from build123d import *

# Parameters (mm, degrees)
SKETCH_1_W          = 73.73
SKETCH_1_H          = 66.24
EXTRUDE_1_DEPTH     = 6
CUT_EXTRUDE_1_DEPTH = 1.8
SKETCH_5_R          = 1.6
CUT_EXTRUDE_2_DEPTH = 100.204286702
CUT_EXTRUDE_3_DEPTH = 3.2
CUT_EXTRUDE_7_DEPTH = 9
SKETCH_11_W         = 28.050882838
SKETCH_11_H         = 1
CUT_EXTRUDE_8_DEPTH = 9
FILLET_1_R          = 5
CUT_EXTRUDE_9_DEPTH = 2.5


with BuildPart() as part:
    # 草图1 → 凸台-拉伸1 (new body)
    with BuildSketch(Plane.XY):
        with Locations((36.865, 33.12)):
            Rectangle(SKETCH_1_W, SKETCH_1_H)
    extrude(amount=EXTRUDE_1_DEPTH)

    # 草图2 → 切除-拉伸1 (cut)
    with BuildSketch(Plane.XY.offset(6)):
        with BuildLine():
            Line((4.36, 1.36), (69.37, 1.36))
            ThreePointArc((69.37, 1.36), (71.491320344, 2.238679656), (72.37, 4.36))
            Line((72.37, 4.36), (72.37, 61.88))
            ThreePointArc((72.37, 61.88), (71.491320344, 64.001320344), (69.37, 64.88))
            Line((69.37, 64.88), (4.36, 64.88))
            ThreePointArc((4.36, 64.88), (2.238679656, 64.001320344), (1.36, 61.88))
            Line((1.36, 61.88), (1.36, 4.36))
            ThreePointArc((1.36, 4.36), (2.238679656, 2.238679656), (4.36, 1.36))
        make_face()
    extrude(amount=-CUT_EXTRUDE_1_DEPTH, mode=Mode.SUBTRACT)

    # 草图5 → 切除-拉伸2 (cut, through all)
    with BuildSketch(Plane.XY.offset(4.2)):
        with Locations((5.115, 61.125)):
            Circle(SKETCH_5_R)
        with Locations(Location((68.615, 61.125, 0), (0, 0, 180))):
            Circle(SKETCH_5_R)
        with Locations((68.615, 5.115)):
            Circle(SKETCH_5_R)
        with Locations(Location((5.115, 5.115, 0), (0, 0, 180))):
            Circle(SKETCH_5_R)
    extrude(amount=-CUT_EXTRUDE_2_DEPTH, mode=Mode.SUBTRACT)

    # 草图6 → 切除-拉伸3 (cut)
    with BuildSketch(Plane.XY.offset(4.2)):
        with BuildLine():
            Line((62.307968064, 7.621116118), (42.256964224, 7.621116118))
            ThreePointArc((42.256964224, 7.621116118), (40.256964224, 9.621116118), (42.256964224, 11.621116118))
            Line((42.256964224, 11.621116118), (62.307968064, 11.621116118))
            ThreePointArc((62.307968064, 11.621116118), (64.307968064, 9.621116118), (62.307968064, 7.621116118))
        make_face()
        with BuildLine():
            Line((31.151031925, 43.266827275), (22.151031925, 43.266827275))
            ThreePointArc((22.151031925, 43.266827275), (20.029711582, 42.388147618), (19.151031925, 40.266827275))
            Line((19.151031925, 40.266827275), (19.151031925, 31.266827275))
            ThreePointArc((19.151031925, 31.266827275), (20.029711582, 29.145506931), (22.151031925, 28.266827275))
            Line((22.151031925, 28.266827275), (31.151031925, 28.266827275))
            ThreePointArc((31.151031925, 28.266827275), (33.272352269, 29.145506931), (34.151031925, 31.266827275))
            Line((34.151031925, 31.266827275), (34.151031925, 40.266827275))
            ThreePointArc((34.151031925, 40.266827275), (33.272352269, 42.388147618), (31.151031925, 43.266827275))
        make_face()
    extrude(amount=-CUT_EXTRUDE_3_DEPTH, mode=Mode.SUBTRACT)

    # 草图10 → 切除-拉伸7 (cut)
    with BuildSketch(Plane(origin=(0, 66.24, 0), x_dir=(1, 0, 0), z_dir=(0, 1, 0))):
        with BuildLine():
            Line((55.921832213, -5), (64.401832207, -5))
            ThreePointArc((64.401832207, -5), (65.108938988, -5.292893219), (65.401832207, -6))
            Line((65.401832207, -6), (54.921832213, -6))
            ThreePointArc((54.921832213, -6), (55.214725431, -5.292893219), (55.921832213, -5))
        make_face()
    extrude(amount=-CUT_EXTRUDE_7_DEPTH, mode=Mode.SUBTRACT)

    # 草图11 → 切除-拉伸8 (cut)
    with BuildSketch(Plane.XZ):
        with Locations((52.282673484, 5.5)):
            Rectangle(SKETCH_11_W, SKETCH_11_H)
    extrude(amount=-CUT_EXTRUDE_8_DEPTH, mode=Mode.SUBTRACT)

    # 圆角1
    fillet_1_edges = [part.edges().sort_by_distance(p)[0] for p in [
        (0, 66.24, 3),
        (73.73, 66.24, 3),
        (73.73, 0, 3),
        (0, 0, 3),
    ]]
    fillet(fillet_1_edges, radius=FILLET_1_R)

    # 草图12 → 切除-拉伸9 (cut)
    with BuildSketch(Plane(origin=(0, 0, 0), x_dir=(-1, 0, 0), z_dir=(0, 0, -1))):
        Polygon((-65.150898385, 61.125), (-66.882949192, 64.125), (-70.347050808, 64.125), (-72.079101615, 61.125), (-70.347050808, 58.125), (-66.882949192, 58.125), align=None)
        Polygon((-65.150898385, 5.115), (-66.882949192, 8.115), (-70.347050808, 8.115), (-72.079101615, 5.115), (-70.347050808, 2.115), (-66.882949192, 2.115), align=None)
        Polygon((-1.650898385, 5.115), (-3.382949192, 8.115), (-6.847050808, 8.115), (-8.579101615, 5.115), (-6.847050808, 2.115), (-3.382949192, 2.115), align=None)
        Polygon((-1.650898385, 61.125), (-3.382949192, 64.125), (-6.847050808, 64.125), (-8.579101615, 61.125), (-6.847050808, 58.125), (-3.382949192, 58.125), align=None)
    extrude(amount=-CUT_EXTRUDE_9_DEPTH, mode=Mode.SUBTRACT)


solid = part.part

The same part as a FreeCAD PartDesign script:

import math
import FreeCAD as App
import Part
import Sketcher

V = App.Vector
Q = App.Units.Quantity


def edges_at(feature, points):
    """Names of the edges that pass closest to the given points."""
    edges = feature.Shape.Edges
    near = lambda p: min(range(len(edges)), key=lambda i: edges[i].distToShape(Part.Vertex(*p))[0])
    return sorted({f"Edge{near(p) + 1}" for p in points})

doc = App.newDocument("Part")
body = doc.addObject("PartDesign::Body", "Body")

# Sketch on XY plane
sketch1 = body.newObject("Sketcher::SketchObject", "Sketch")
sketch1.AttachmentSupport = (doc.getObject("XY_Plane"), [""])
sketch1.MapMode = "FlatFace"
sketch1.addGeometry(Part.LineSegment(V(0, 66.24, 0), V(0, 0, 0)), False)
sketch1.addGeometry(Part.LineSegment(V(0, 0, 0), V(73.73, 0, 0)), False)
sketch1.addGeometry(Part.LineSegment(V(73.73, 0, 0), V(73.73, 66.24, 0)), False)
sketch1.addGeometry(Part.LineSegment(V(73.73, 66.24, 0), V(0, 66.24, 0)), False)
sketch1.addConstraint(Sketcher.Constraint("Coincident", 0, 2, 1, 1))
sketch1.addConstraint(Sketcher.Constraint("Coincident", 1, 2, 2, 1))
sketch1.addConstraint(Sketcher.Constraint("Coincident", 2, 2, 3, 1))
sketch1.addConstraint(Sketcher.Constraint("Coincident", 3, 2, 0, 1))
sketch1.addConstraint(Sketcher.Constraint("Vertical", 0))
sketch1.addConstraint(Sketcher.Constraint("Horizontal", 1))
sketch1.addConstraint(Sketcher.Constraint("Vertical", 2))
sketch1.addConstraint(Sketcher.Constraint("Horizontal", 3))
sketch1.addConstraint(Sketcher.Constraint("Coincident", 0, 2, -1, 1))
sketch1.addConstraint(Sketcher.Constraint("DistanceX", 1, 1, 1, 2, 73.73))
sketch1.addConstraint(Sketcher.Constraint("DistanceY", 0, 2, 0, 1, 66.24))
pad1 = body.newObject("PartDesign::Pad", "Pad")
pad1.Profile = sketch1
pad1.Length = 6

# Sketch on XY plane
sketch2 = body.newObject("Sketcher::SketchObject", "Sketch001")
sketch2.AttachmentSupport = (doc.getObject("XY_Plane"), [""])
sketch2.MapMode = "FlatFace"
sketch2.AttachmentOffset = App.Placement(V(0, 0, 6), App.Rotation())
sketch2.addGeometry(Part.LineSegment(V(4.36, 1.36, 0), V(69.37, 1.36, 0)), False)
sketch2.addGeometry(Part.ArcOfCircle(Part.Circle(V(69.37, 4.36, 0), V(0, 0, 1), 3), math.radians(-90), math.radians(0)), False)
sketch2.addGeometry(Part.LineSegment(V(72.37, 4.36, 0), V(72.37, 61.88, 0)), False)
sketch2.addGeometry(Part.ArcOfCircle(Part.Circle(V(69.37, 61.88, 0), V(0, 0, 1), 3), math.radians(0), math.radians(90)), False)
sketch2.addGeometry(Part.LineSegment(V(69.37, 64.88, 0), V(4.36, 64.88, 0)), False)
sketch2.addGeometry(Part.ArcOfCircle(Part.Circle(V(4.36, 61.88, 0), V(0, 0, 1), 3), math.radians(90), math.radians(180)), False)
sketch2.addGeometry(Part.LineSegment(V(1.36, 61.88, 0), V(1.36, 4.36, 0)), False)
sketch2.addGeometry(Part.ArcOfCircle(Part.Circle(V(4.36, 4.36, 0), V(0, 0, 1), 3), math.radians(180), math.radians(270)), False)
sketch2.addConstraint(Sketcher.Constraint("Tangent", 0, 2, 1, 1))
sketch2.addConstraint(Sketcher.Constraint("Tangent", 1, 2, 2, 1))
sketch2.addConstraint(Sketcher.Constraint("Tangent", 2, 2, 3, 1))
sketch2.addConstraint(Sketcher.Constraint("Tangent", 3, 2, 4, 1))
sketch2.addConstraint(Sketcher.Constraint("Tangent", 4, 2, 5, 1))
sketch2.addConstraint(Sketcher.Constraint("Tangent", 5, 2, 6, 1))
sketch2.addConstraint(Sketcher.Constraint("Tangent", 6, 2, 7, 1))
sketch2.addConstraint(Sketcher.Constraint("Tangent", 7, 2, 0, 1))
sketch2.addConstraint(Sketcher.Constraint("Horizontal", 0))
sketch2.addConstraint(Sketcher.Constraint("Vertical", 2))
sketch2.addConstraint(Sketcher.Constraint("Horizontal", 4))
sketch2.addConstraint(Sketcher.Constraint("Vertical", 6))
sketch2.addConstraint(Sketcher.Constraint("Equal", 1, 3))
sketch2.addConstraint(Sketcher.Constraint("Equal", 3, 5))
sketch2.addConstraint(Sketcher.Constraint("Equal", 5, 7))
sketch2.addConstraint(Sketcher.Constraint("Radius", 1, 3.0))
sketch2.addConstraint(Sketcher.Constraint("DistanceX", 0, 1, 0, 2, 65.01))
sketch2.addConstraint(Sketcher.Constraint("DistanceY", 2, 1, 2, 2, 57.52))
sketch2.addConstraint(Sketcher.Constraint("DistanceX", -1, 1, 1, 3, 69.37))
sketch2.addConstraint(Sketcher.Constraint("DistanceY", -1, 1, 1, 3, 4.36))
pocket1 = body.newObject("PartDesign::Pocket", "Pocket")
pocket1.Profile = sketch2
pocket1.Length = 1.8

# Sketch on XY plane
sketch3 = body.newObject("Sketcher::SketchObject", "Sketch002")
sketch3.AttachmentSupport = (doc.getObject("XY_Plane"), [""])
sketch3.MapMode = "FlatFace"
sketch3.AttachmentOffset = App.Placement(V(0, 0, 4.2), App.Rotation())
sketch3.addGeometry(Part.Circle(V(5.115, 61.125, 0), V(0, 0, 1), 1.6), False)
sketch3.addGeometry(Part.Circle(V(68.615, 61.125, 0), V(0, 0, 1), 1.6), False)
sketch3.addGeometry(Part.Circle(V(68.615, 5.115, 0), V(0, 0, 1), 1.6), False)
sketch3.addGeometry(Part.Circle(V(5.115, 5.115, 0), V(0, 0, 1), 1.6), False)
sketch3.addConstraint(Sketcher.Constraint("Equal", 0, 1))
sketch3.addConstraint(Sketcher.Constraint("Equal", 1, 2))
sketch3.addConstraint(Sketcher.Constraint("Equal", 2, 3))
sketch3.addConstraint(Sketcher.Constraint("Horizontal", 0, 3, 1, 3))
sketch3.addConstraint(Sketcher.Constraint("Horizontal", 2, 3, 3, 3))
sketch3.addConstraint(Sketcher.Constraint("Vertical", 1, 3, 2, 3))
sketch3.addConstraint(Sketcher.Constraint("Vertical", 0, 3, 3, 3))
sketch3.addConstraint(Sketcher.Constraint("Diameter", 0, 3.2))
sketch3.addConstraint(Sketcher.Constraint("DistanceX", 0, 3, 1, 3, 63.5))
sketch3.addConstraint(Sketcher.Constraint("DistanceY", 2, 3, 1, 3, 56.01))
sketch3.addConstraint(Sketcher.Constraint("DistanceX", -1, 1, 0, 3, 5.115))
sketch3.addConstraint(Sketcher.Constraint("DistanceY", -1, 1, 0, 3, 61.125))
pocket2 = body.newObject("PartDesign::Pocket", "Pocket001")
pocket2.Profile = sketch3
pocket2.Type = "ThroughAll"

# Sketch on XY plane
sketch4 = body.newObject("Sketcher::SketchObject", "Sketch003")
sketch4.AttachmentSupport = (doc.getObject("XY_Plane"), [""])
sketch4.MapMode = "FlatFace"
sketch4.AttachmentOffset = App.Placement(V(0, 0, 4.2), App.Rotation())
sketch4.addGeometry(Part.LineSegment(V(42.256964, 7.621116, 0), V(62.307968, 7.621116, 0)), False)
sketch4.addGeometry(Part.ArcOfCircle(Part.Circle(V(62.307968, 9.621116, 0), V(0, 0, 1), 2), math.radians(-90), math.radians(90)), False)
sketch4.addGeometry(Part.LineSegment(V(62.307968, 11.621116, 0), V(42.256964, 11.621116, 0)), False)
sketch4.addGeometry(Part.ArcOfCircle(Part.Circle(V(42.256964, 9.621116, 0), V(0, 0, 1), 2), math.radians(90), math.radians(270)), False)
sketch4.addGeometry(Part.LineSegment(V(31.151032, 43.266827, 0), V(22.151032, 43.266827, 0)), False)
sketch4.addGeometry(Part.ArcOfCircle(Part.Circle(V(22.151032, 40.266827, 0), V(0, 0, 1), 3), math.radians(90), math.radians(180)), False)
sketch4.addGeometry(Part.LineSegment(V(19.151032, 40.266827, 0), V(19.151032, 31.266827, 0)), False)
sketch4.addGeometry(Part.ArcOfCircle(Part.Circle(V(22.151032, 31.266827, 0), V(0, 0, 1), 3), math.radians(180), math.radians(270)), False)
sketch4.addGeometry(Part.LineSegment(V(22.151032, 28.266827, 0), V(31.151032, 28.266827, 0)), False)
sketch4.addGeometry(Part.ArcOfCircle(Part.Circle(V(31.151032, 31.266827, 0), V(0, 0, 1), 3), math.radians(-90), math.radians(0)), False)
sketch4.addGeometry(Part.LineSegment(V(34.151032, 31.266827, 0), V(34.151032, 40.266827, 0)), False)
sketch4.addGeometry(Part.ArcOfCircle(Part.Circle(V(31.151032, 40.266827, 0), V(0, 0, 1), 3), math.radians(0), math.radians(90)), False)
sketch4.addConstraint(Sketcher.Constraint("Tangent", 0, 2, 1, 1))
sketch4.addConstraint(Sketcher.Constraint("Tangent", 1, 2, 2, 1))
sketch4.addConstraint(Sketcher.Constraint("Tangent", 2, 2, 3, 1))
sketch4.addConstraint(Sketcher.Constraint("Tangent", 3, 2, 0, 1))
sketch4.addConstraint(Sketcher.Constraint("Tangent", 4, 2, 5, 1))
sketch4.addConstraint(Sketcher.Constraint("Tangent", 5, 2, 6, 1))
sketch4.addConstraint(Sketcher.Constraint("Tangent", 6, 2, 7, 1))
sketch4.addConstraint(Sketcher.Constraint("Tangent", 7, 2, 8, 1))
sketch4.addConstraint(Sketcher.Constraint("Tangent", 8, 2, 9, 1))
sketch4.addConstraint(Sketcher.Constraint("Tangent", 9, 2, 10, 1))
sketch4.addConstraint(Sketcher.Constraint("Tangent", 10, 2, 11, 1))
sketch4.addConstraint(Sketcher.Constraint("Tangent", 11, 2, 4, 1))
sketch4.addConstraint(Sketcher.Constraint("Horizontal", 0))
sketch4.addConstraint(Sketcher.Constraint("Horizontal", 2))
sketch4.addConstraint(Sketcher.Constraint("Horizontal", 4))
sketch4.addConstraint(Sketcher.Constraint("Vertical", 6))
sketch4.addConstraint(Sketcher.Constraint("Horizontal", 8))
sketch4.addConstraint(Sketcher.Constraint("Vertical", 10))
sketch4.addConstraint(Sketcher.Constraint("Equal", 5, 7))
sketch4.addConstraint(Sketcher.Constraint("Equal", 7, 9))
sketch4.addConstraint(Sketcher.Constraint("Equal", 9, 11))
sketch4.addConstraint(Sketcher.Constraint("Equal", 8, 6))
sketch4.addConstraint(Sketcher.Constraint("Radius", 1, 2.0))
sketch4.addConstraint(Sketcher.Constraint("Radius", 5, 3.0))
sketch4.addConstraint(Sketcher.Constraint("DistanceX", 4, 2, 4, 1, 9.0))
sketch4.addConstraint(Sketcher.Constraint("DistanceX", 0, 1, 0, 2, 20.051004))
sketch4.addConstraint(Sketcher.Constraint("DistanceX", -1, 1, 1, 3, 62.307968))
sketch4.addConstraint(Sketcher.Constraint("DistanceX", -1, 1, 5, 3, 22.151032))
sketch4.addConstraint(Sketcher.Constraint("DistanceY", 3, 3, 5, 3, 30.645711))
sketch4.addConstraint(Sketcher.Constraint("DistanceY", -1, 1, 1, 3, 9.621116))
pocket3 = body.newObject("PartDesign::Pocket", "Pocket002")
pocket3.Profile = sketch4
pocket3.Length = 3.2

# Sketch on XZ plane
sketch5 = body.newObject("Sketcher::SketchObject", "Sketch004")
sketch5.AttachmentSupport = (doc.getObject("XZ_Plane"), [""])
sketch5.MapMode = "FlatFace"
sketch5.AttachmentOffset = App.Placement(V(0, 0, -66.24), App.Rotation())
sketch5.addGeometry(Part.LineSegment(V(64.401832, 5, 0), V(55.921832, 5, 0)), False)
sketch5.addGeometry(Part.ArcOfCircle(Part.Circle(V(55.921832, 6, 0), V(0, 0, 1), 1), math.radians(180), math.radians(270)), False)
sketch5.addGeometry(Part.LineSegment(V(54.921832, 6, 0), V(65.401832, 6, 0)), False)
sketch5.addGeometry(Part.ArcOfCircle(Part.Circle(V(64.401832, 6, 0), V(0, 0, 1), 1), math.radians(-90), math.radians(0)), False)
sketch5.addConstraint(Sketcher.Constraint("Tangent", 0, 2, 1, 2))
sketch5.addConstraint(Sketcher.Constraint("Coincident", 1, 1, 2, 1))
sketch5.addConstraint(Sketcher.Constraint("Coincident", 2, 2, 3, 2))
sketch5.addConstraint(Sketcher.Constraint("Tangent", 3, 1, 0, 1))
sketch5.addConstraint(Sketcher.Constraint("Horizontal", 0))
sketch5.addConstraint(Sketcher.Constraint("Horizontal", 2))
sketch5.addConstraint(Sketcher.Constraint("Equal", 1, 3))
sketch5.addConstraint(Sketcher.Constraint("Horizontal", 3, 3, 1, 1))
sketch5.addConstraint(Sketcher.Constraint("Radius", 1, 1.0))
sketch5.addConstraint(Sketcher.Constraint("DistanceY", -1, 1, 1, 3, 6.0))
sketch5.addConstraint(Sketcher.Constraint("DistanceX", 0, 2, 0, 1, 8.48))
sketch5.addConstraint(Sketcher.Constraint("DistanceX", -1, 1, 1, 3, 55.921832))
pocket4 = body.newObject("PartDesign::Pocket", "Pocket003")
pocket4.Profile = sketch5
pocket4.Length = 9
pocket4.Reversed = True

# Sketch on XZ plane
sketch6 = body.newObject("Sketcher::SketchObject", "Sketch005")
sketch6.AttachmentSupport = (doc.getObject("XZ_Plane"), [""])
sketch6.MapMode = "FlatFace"
sketch6.addGeometry(Part.LineSegment(V(38.257232, 6, 0), V(38.257232, 5, 0)), False)
sketch6.addGeometry(Part.LineSegment(V(38.257232, 5, 0), V(66.308115, 5, 0)), False)
sketch6.addGeometry(Part.LineSegment(V(66.308115, 5, 0), V(66.308115, 6, 0)), False)
sketch6.addGeometry(Part.LineSegment(V(66.308115, 6, 0), V(38.257232, 6, 0)), False)
sketch6.addConstraint(Sketcher.Constraint("Coincident", 0, 2, 1, 1))
sketch6.addConstraint(Sketcher.Constraint("Coincident", 1, 2, 2, 1))
sketch6.addConstraint(Sketcher.Constraint("Coincident", 2, 2, 3, 1))
sketch6.addConstraint(Sketcher.Constraint("Coincident", 3, 2, 0, 1))
sketch6.addConstraint(Sketcher.Constraint("Vertical", 0))
sketch6.addConstraint(Sketcher.Constraint("Horizontal", 1))
sketch6.addConstraint(Sketcher.Constraint("Vertical", 2))
sketch6.addConstraint(Sketcher.Constraint("Horizontal", 3))
sketch6.addConstraint(Sketcher.Constraint("DistanceY", 0, 2, 0, 1, 1.0))
sketch6.addConstraint(Sketcher.Constraint("DistanceY", -1, 1, 0, 2, 5.0))
sketch6.addConstraint(Sketcher.Constraint("DistanceX", 1, 1, 1, 2, 28.050883))
sketch6.addConstraint(Sketcher.Constraint("DistanceX", -1, 1, 0, 2, 38.257232))
pocket5 = body.newObject("PartDesign::Pocket", "Pocket004")
pocket5.Profile = sketch6
pocket5.Length = 9
doc.recompute()

fillet = body.newObject("PartDesign::Fillet", "Fillet")
fillet.Base = (pocket5, edges_at(pocket5, [
    (0, 66.24, 3),
    (73.73, 66.24, 3),
    (73.73, 0, 3),
    (0, 0, 3),
]))
fillet.Radius = 5

# Sketch on XY plane
sketch7 = body.newObject("Sketcher::SketchObject", "Sketch006")
sketch7.AttachmentSupport = (doc.getObject("XY_Plane"), [""])
sketch7.MapMode = "FlatFace"
sketch7.addGeometry(Part.LineSegment(V(65.150898, 61.125, 0), V(66.882949, 64.125, 0)), False)
sketch7.addGeometry(Part.LineSegment(V(66.882949, 64.125, 0), V(70.347051, 64.125, 0)), False)
sketch7.addGeometry(Part.LineSegment(V(70.347051, 64.125, 0), V(72.079102, 61.125, 0)), False)
sketch7.addGeometry(Part.LineSegment(V(72.079102, 61.125, 0), V(70.347051, 58.125, 0)), False)
sketch7.addGeometry(Part.LineSegment(V(70.347051, 58.125, 0), V(66.882949, 58.125, 0)), False)
sketch7.addGeometry(Part.LineSegment(V(66.882949, 58.125, 0), V(65.150898, 61.125, 0)), False)
sketch7.addGeometry(Part.LineSegment(V(65.150898, 5.115, 0), V(66.882949, 8.115, 0)), False)
sketch7.addGeometry(Part.LineSegment(V(66.882949, 8.115, 0), V(70.347051, 8.115, 0)), False)
sketch7.addGeometry(Part.LineSegment(V(70.347051, 8.115, 0), V(72.079102, 5.115, 0)), False)
sketch7.addGeometry(Part.LineSegment(V(72.079102, 5.115, 0), V(70.347051, 2.115, 0)), False)
sketch7.addGeometry(Part.LineSegment(V(70.347051, 2.115, 0), V(66.882949, 2.115, 0)), False)
sketch7.addGeometry(Part.LineSegment(V(66.882949, 2.115, 0), V(65.150898, 5.115, 0)), False)
sketch7.addGeometry(Part.LineSegment(V(1.650898, 5.115, 0), V(3.382949, 8.115, 0)), False)
sketch7.addGeometry(Part.LineSegment(V(3.382949, 8.115, 0), V(6.847051, 8.115, 0)), False)
sketch7.addGeometry(Part.LineSegment(V(6.847051, 8.115, 0), V(8.579102, 5.115, 0)), False)
sketch7.addGeometry(Part.LineSegment(V(8.579102, 5.115, 0), V(6.847051, 2.115, 0)), False)
sketch7.addGeometry(Part.LineSegment(V(6.847051, 2.115, 0), V(3.382949, 2.115, 0)), False)
sketch7.addGeometry(Part.LineSegment(V(3.382949, 2.115, 0), V(1.650898, 5.115, 0)), False)
sketch7.addGeometry(Part.LineSegment(V(1.650898, 61.125, 0), V(3.382949, 64.125, 0)), False)
sketch7.addGeometry(Part.LineSegment(V(3.382949, 64.125, 0), V(6.847051, 64.125, 0)), False)
sketch7.addGeometry(Part.LineSegment(V(6.847051, 64.125, 0), V(8.579102, 61.125, 0)), False)
sketch7.addGeometry(Part.LineSegment(V(8.579102, 61.125, 0), V(6.847051, 58.125, 0)), False)
sketch7.addGeometry(Part.LineSegment(V(6.847051, 58.125, 0), V(3.382949, 58.125, 0)), False)
sketch7.addGeometry(Part.LineSegment(V(3.382949, 58.125, 0), V(1.650898, 61.125, 0)), False)
sketch7.addConstraint(Sketcher.Constraint("Coincident", 0, 2, 1, 1))
sketch7.addConstraint(Sketcher.Constraint("Coincident", 1, 2, 2, 1))
sketch7.addConstraint(Sketcher.Constraint("Coincident", 2, 2, 3, 1))
sketch7.addConstraint(Sketcher.Constraint("Coincident", 3, 2, 4, 1))
sketch7.addConstraint(Sketcher.Constraint("Coincident", 4, 2, 5, 1))
sketch7.addConstraint(Sketcher.Constraint("Coincident", 5, 2, 0, 1))
sketch7.addConstraint(Sketcher.Constraint("Coincident", 6, 2, 7, 1))
sketch7.addConstraint(Sketcher.Constraint("Coincident", 7, 2, 8, 1))
sketch7.addConstraint(Sketcher.Constraint("Coincident", 8, 2, 9, 1))
sketch7.addConstraint(Sketcher.Constraint("Coincident", 9, 2, 10, 1))
sketch7.addConstraint(Sketcher.Constraint("Coincident", 10, 2, 11, 1))
sketch7.addConstraint(Sketcher.Constraint("Coincident", 11, 2, 6, 1))
sketch7.addConstraint(Sketcher.Constraint("Coincident", 12, 2, 13, 1))
sketch7.addConstraint(Sketcher.Constraint("Coincident", 13, 2, 14, 1))
sketch7.addConstraint(Sketcher.Constraint("Coincident", 14, 2, 15, 1))
sketch7.addConstraint(Sketcher.Constraint("Coincident", 15, 2, 16, 1))
sketch7.addConstraint(Sketcher.Constraint("Coincident", 16, 2, 17, 1))
sketch7.addConstraint(Sketcher.Constraint("Coincident", 17, 2, 12, 1))
sketch7.addConstraint(Sketcher.Constraint("Coincident", 18, 2, 19, 1))
sketch7.addConstraint(Sketcher.Constraint("Coincident", 19, 2, 20, 1))
sketch7.addConstraint(Sketcher.Constraint("Coincident", 20, 2, 21, 1))
sketch7.addConstraint(Sketcher.Constraint("Coincident", 21, 2, 22, 1))
sketch7.addConstraint(Sketcher.Constraint("Coincident", 22, 2, 23, 1))
sketch7.addConstraint(Sketcher.Constraint("Coincident", 23, 2, 18, 1))
sketch7.addConstraint(Sketcher.Constraint("Horizontal", 1))
sketch7.addConstraint(Sketcher.Constraint("Horizontal", 4))
sketch7.addConstraint(Sketcher.Constraint("Horizontal", 7))
sketch7.addConstraint(Sketcher.Constraint("Horizontal", 10))
sketch7.addConstraint(Sketcher.Constraint("Horizontal", 13))
sketch7.addConstraint(Sketcher.Constraint("Horizontal", 16))
sketch7.addConstraint(Sketcher.Constraint("Horizontal", 19))
sketch7.addConstraint(Sketcher.Constraint("Horizontal", 22))
sketch7.addConstraint(Sketcher.Constraint("Parallel", 0, 3))
sketch7.addConstraint(Sketcher.Constraint("Parallel", 2, 5))
sketch7.addConstraint(Sketcher.Constraint("Parallel", 3, 6))
sketch7.addConstraint(Sketcher.Constraint("Parallel", 5, 8))
sketch7.addConstraint(Sketcher.Constraint("Parallel", 6, 9))
sketch7.addConstraint(Sketcher.Constraint("Parallel", 8, 11))
sketch7.addConstraint(Sketcher.Constraint("Parallel", 9, 12))
sketch7.addConstraint(Sketcher.Constraint("Parallel", 11, 14))
sketch7.addConstraint(Sketcher.Constraint("Parallel", 12, 15))
sketch7.addConstraint(Sketcher.Constraint("Parallel", 14, 17))
sketch7.addConstraint(Sketcher.Constraint("Parallel", 15, 18))
sketch7.addConstraint(Sketcher.Constraint("Parallel", 17, 20))
sketch7.addConstraint(Sketcher.Constraint("Parallel", 18, 21))
sketch7.addConstraint(Sketcher.Constraint("Parallel", 20, 23))
sketch7.addConstraint(Sketcher.Constraint("Horizontal", 2, 2, 5, 2))
sketch7.addConstraint(Sketcher.Constraint("Horizontal", 8, 2, 11, 2))
sketch7.addConstraint(Sketcher.Constraint("Horizontal", 7, 2, 12, 2))
sketch7.addConstraint(Sketcher.Constraint("Horizontal", 11, 2, 14, 2))
sketch7.addConstraint(Sketcher.Constraint("Horizontal", 10, 2, 15, 2))
sketch7.addConstraint(Sketcher.Constraint("Horizontal", 14, 2, 17, 2))
sketch7.addConstraint(Sketcher.Constraint("Horizontal", 1, 2, 18, 2))
sketch7.addConstraint(Sketcher.Constraint("Horizontal", 5, 2, 20, 2))
sketch7.addConstraint(Sketcher.Constraint("Horizontal", 4, 2, 21, 2))
sketch7.addConstraint(Sketcher.Constraint("Horizontal", 20, 2, 23, 2))
sketch7.addConstraint(Sketcher.Constraint("Vertical", 1, 2, 3, 2))
sketch7.addConstraint(Sketcher.Constraint("Vertical", 0, 2, 4, 2))
sketch7.addConstraint(Sketcher.Constraint("Vertical", 4, 2, 6, 2))
sketch7.addConstraint(Sketcher.Constraint("Vertical", 3, 2, 7, 2))
sketch7.addConstraint(Sketcher.Constraint("Vertical", 2, 2, 8, 2))
sketch7.addConstraint(Sketcher.Constraint("Vertical", 7, 2, 9, 2))
sketch7.addConstraint(Sketcher.Constraint("Vertical", 16, 2, 18, 2))
sketch7.addConstraint(Sketcher.Constraint("Vertical", 15, 2, 19, 2))
sketch7.addConstraint(Sketcher.Constraint("Equal", 10, 13))
sketch7.addConstraint(Sketcher.Constraint("Angle", 0, Q("60 deg")))
sketch7.addConstraint(Sketcher.Constraint("DistanceY", 2, 2, 1, 2, 3.0))
sketch7.addConstraint(Sketcher.Constraint("DistanceX", 12, 2, 6, 2, 63.5))
sketch7.addConstraint(Sketcher.Constraint("DistanceY", 6, 2, 4, 2, 50.01))
sketch7.addConstraint(Sketcher.Constraint("DistanceX", 1, 1, 1, 2, 3.464102))
sketch7.addConstraint(Sketcher.Constraint("DistanceY", -1, 1, 0, 2, 64.125))
sketch7.addConstraint(Sketcher.Constraint("DistanceX", -1, 1, 2, 2, 72.079102))
pocket6 = body.newObject("PartDesign::Pocket", "Pocket005")
pocket6.Profile = sketch7
pocket6.Length = 2.5
pocket6.Reversed = True

doc.recompute()
